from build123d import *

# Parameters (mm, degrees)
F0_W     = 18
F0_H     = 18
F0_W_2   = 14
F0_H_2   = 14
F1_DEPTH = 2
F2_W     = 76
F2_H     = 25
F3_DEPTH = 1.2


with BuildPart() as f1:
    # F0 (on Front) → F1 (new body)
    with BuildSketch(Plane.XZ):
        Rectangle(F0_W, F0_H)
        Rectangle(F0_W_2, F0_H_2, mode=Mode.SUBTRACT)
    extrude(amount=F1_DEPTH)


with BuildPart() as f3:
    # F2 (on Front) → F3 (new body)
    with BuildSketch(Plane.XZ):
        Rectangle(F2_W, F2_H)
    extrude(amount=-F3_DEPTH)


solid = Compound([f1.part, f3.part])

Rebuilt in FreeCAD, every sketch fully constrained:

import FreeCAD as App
import Part
import Sketcher
from FreeCAD import Vector
Q = App.Units.Quantity


def add_polygon(sketch, points):
    """Adds a closed chain of lines whose ends are joined by coincident constraints."""
    first, n = sketch.GeometryCount, len(points)
    for a, b in zip(points, points[1:] + points[:1]):
        sketch.addGeometry(Part.LineSegment(App.Vector(*a, 0), App.Vector(*b, 0)), False)
    for i in range(n):
        sketch.addConstraint(Sketcher.Constraint("Coincident", first + i, 2, first + (i + 1) % n, 1))

doc = App.newDocument("Part")
body = doc.addObject("PartDesign::Body", "Body")

sketch1 = body.newObject("Sketcher::SketchObject", "Sketch")
sketch1.AttachmentSupport = (doc.getObject("XZ_Plane"), [""])
sketch1.MapMode = "FlatFace"
add_polygon(sketch1, [(-9, 9), (-9, -9), (9, -9), (9, 9)])
add_polygon(sketch1, [(7, -7), (-7, -7), (-7, 7), (7, 7)])
sketch1.addConstraint([
    Sketcher.Constraint("Vertical", 0),
    Sketcher.Constraint("Horizontal", 1),
    Sketcher.Constraint("Vertical", 2),
    Sketcher.Constraint("Horizontal", 3),
    Sketcher.Constraint("Horizontal", 4),
    Sketcher.Constraint("Vertical", 5),
    Sketcher.Constraint("Horizontal", 6),
    Sketcher.Constraint("Vertical", 7),
    Sketcher.Constraint("Symmetric", 0, 2, 2, 2, -1, 1),
    Sketcher.Constraint("Symmetric", 4, 2, 6, 2, -1, 1),
    Sketcher.Constraint("Equal", 3, 0),
    Sketcher.Constraint("Equal", 6, 5),
    Sketcher.Constraint("DistanceX", 1, 1, 1, 2, Q("18 mm")),
    Sketcher.Constraint("DistanceX", 4, 2, 4, 1, Q("14 mm")),
])
pad1 = body.newObject("PartDesign::Pad", "Pad")
pad1.Profile = sketch1
pad1.Length = 2
body2 = doc.addObject("PartDesign::Body", "Body001")

sketch2 = body2.newObject("Sketcher::SketchObject", "Sketch001")
sketch2.AttachmentSupport = (doc.getObject("XZ_Plane001"), [""])
sketch2.MapMode = "FlatFace"
add_polygon(sketch2, [(-38, 12.5), (-38, -12.5), (38, -12.5), (38, 12.5)])
sketch2.addConstraint([
    Sketcher.Constraint("Vertical", 0),
    Sketcher.Constraint("Horizontal", 1),
    Sketcher.Constraint("Vertical", 2),
    Sketcher.Constraint("Horizontal", 3),
    Sketcher.Constraint("Symmetric", 0, 2, 2, 2, -1, 1),
    Sketcher.Constraint("DistanceX", 1, 1, 1, 2, Q("76 mm")),
    Sketcher.Constraint("DistanceY", 0, 2, 0, 1, Q("25 mm")),
])
pad2 = body2.newObject("PartDesign::Pad", "Pad001")
pad2.Profile = sketch2
pad2.Length = 1.2
pad2.Reversed = True

doc.recompute()
